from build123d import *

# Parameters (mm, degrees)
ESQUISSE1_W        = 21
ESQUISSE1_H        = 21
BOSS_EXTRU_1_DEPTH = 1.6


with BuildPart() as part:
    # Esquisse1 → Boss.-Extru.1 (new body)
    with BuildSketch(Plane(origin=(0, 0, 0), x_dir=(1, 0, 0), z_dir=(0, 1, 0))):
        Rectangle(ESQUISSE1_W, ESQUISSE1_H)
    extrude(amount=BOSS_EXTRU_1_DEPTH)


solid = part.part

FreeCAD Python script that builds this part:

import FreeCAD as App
import Part
import Sketcher

V = App.Vector
Q = App.Units.Quantity

doc = App.newDocument("Part")
body = doc.addObject("PartDesign::Body", "Body")

# Sketch on XZ plane
sketch1 = body.newObject("Sketcher::SketchObject", "Sketch")
sketch1.AttachmentSupport = (doc.getObject("XZ_Plane"), [""])
sketch1.MapMode = "FlatFace"
sketch1.addGeometry([
    Part.LineSegment(V(-10, -10, 0), V(-10, 10, 0)),
    Part.LineSegment(V(-10, 10, 0), V(10, 10, 0)),
    Part.LineSegment(V(10, 10, 0), V(10, -10, 0)),
    Part.LineSegment(V(10, -10, 0), V(-10, -10, 0)),
], False)
sketch1.addConstraint([
    Sketcher.Constraint("Coincident", 0, 2, 1, 1),
    Sketcher.Constraint("Coincident", 1, 2, 2, 1),
    Sketcher.Constraint("Coincident", 2, 2, 3, 1),
    Sketcher.Constraint("Coincident", 3, 2, 0, 1),
    Sketcher.Constraint("Vertical", 0),
    Sketcher.Constraint("Horizontal", 1),
    Sketcher.Constraint("Vertical", 2),
    Sketcher.Constraint("Horizontal", 3),
    Sketcher.Constraint("Symmetric", 0, 2, 2, 2, -1, 1),
    Sketcher.Constraint("Equal", 3, 0),
    Sketcher.Constraint("DistanceX", 1, 1, 1, 2, Q("21 mm")),
])
pad1 = body.newObject("PartDesign::Pad", "Pad")
pad1.Profile = sketch1
pad1.Length = 1.6
pad1.Reversed = True

doc.recompute()
